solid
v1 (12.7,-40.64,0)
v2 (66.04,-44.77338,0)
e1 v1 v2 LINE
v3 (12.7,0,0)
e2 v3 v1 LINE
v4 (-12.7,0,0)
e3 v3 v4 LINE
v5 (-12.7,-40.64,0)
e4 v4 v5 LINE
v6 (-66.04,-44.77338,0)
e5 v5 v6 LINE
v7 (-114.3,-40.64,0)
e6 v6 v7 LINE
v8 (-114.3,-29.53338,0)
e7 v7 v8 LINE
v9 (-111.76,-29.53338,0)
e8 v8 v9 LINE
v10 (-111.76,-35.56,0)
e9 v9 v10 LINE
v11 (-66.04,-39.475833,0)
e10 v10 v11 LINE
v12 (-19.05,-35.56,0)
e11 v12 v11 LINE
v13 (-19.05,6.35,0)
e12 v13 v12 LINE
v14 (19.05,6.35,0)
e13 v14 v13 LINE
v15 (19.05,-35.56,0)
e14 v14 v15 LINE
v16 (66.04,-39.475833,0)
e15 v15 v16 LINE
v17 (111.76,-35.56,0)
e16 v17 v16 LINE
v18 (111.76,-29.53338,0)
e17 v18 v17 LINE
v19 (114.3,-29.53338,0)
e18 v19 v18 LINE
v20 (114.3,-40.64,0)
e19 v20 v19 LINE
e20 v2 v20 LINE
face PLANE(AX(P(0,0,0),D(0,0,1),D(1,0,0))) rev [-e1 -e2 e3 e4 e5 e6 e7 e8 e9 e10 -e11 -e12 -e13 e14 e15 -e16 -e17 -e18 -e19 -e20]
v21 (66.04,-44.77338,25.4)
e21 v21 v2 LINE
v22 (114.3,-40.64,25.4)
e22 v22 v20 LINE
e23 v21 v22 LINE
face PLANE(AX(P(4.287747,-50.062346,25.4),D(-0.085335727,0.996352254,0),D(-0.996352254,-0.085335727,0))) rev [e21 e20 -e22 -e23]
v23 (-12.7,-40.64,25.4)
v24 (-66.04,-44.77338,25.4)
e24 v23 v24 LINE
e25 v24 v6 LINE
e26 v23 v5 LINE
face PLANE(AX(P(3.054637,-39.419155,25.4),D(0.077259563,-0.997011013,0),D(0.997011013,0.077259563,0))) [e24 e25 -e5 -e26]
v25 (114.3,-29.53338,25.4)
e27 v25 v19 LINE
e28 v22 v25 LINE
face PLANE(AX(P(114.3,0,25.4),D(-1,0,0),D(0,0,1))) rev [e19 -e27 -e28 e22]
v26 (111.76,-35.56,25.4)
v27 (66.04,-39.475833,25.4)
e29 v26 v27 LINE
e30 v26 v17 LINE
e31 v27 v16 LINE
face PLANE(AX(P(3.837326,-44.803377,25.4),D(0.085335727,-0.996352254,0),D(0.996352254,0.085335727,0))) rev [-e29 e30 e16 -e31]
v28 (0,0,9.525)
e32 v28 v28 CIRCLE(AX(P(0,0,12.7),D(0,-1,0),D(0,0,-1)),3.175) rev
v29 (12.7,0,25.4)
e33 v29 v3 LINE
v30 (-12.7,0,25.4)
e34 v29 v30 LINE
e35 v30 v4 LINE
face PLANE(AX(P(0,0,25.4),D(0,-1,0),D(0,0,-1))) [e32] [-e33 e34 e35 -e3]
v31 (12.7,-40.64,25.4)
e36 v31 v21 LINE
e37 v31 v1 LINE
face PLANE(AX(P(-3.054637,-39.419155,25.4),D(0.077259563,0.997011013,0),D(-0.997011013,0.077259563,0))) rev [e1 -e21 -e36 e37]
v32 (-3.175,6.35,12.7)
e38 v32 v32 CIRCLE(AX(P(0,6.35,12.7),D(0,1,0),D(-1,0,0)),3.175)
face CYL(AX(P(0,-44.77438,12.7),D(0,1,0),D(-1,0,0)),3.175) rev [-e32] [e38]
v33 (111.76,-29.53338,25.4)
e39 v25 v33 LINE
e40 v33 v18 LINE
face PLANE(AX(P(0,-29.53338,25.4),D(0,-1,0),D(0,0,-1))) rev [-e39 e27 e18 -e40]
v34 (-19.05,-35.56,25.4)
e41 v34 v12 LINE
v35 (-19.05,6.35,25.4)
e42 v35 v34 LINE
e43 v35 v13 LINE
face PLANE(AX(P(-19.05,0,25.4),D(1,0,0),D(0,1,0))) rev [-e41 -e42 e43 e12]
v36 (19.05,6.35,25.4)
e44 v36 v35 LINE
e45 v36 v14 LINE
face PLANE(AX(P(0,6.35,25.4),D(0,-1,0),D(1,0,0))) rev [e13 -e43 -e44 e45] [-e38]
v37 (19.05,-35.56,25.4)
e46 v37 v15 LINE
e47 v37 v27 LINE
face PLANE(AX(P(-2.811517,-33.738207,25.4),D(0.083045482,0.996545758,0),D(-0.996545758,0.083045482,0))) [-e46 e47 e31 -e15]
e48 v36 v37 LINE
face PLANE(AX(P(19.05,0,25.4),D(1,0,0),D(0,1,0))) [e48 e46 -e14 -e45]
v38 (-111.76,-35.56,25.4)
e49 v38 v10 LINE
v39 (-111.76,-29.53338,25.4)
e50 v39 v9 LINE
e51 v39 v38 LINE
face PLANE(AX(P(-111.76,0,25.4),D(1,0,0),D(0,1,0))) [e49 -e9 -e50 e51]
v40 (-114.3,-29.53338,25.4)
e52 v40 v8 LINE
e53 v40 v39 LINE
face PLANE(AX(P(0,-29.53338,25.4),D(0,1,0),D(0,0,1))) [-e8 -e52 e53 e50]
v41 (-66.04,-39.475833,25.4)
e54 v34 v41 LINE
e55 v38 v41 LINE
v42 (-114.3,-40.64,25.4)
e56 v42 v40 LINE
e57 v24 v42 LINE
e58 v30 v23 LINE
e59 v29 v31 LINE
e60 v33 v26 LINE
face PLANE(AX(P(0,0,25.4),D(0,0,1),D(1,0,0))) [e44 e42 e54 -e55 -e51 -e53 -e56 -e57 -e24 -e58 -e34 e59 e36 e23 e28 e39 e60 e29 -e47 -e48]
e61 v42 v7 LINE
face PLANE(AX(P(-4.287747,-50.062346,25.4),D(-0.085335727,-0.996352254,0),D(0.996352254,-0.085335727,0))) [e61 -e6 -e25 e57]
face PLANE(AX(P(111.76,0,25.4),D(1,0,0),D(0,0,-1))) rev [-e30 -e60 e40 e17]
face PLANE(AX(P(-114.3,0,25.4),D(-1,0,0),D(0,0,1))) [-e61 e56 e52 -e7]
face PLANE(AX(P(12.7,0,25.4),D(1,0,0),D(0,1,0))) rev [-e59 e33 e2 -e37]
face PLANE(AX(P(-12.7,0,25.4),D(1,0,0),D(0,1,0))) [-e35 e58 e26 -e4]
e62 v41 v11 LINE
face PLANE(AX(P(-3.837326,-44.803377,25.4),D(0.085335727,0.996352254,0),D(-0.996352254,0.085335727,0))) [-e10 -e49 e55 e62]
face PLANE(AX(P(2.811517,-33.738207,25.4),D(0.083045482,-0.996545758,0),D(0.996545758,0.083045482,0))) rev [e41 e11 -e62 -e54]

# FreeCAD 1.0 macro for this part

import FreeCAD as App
import Part
import Sketcher
Q = App.Units.Quantity


def add_polygon(sketch, points):
    """Adds a closed chain of lines whose ends are joined by coincident constraints."""
    first, n = sketch.GeometryCount, len(points)
    for a, b in zip(points, points[1:] + points[:1]):
        sketch.addGeometry(Part.LineSegment(App.Vector(*a, 0), App.Vector(*b, 0)), False)
    for i in range(n):
        sketch.addConstraint(Sketcher.Constraint("Coincident", first + i, 2, first + (i + 1) % n, 1))

doc = App.newDocument("Part")
body = doc.addObject("PartDesign::Body", "Body")

sketch1 = body.newObject("Sketcher::SketchObject", "Sketch")
sketch1.AttachmentSupport = (doc.getObject("XY_Plane"), [""])
sketch1.MapMode = "FlatFace"
add_polygon(sketch1, [(12.7, 0), (12.7, -40.6), (66, -44.8), (114.3, -40.6), (114.3, -29.5), (111.8, -29.5), (111.8, -35.6), (66, -39.5), (19.1, -35.6), (19.1, 6.3), (-19.1, 6.3), (-19.1, -35.6), (-66, -39.5), (-111.8, -35.6), (-111.8, -29.5), (-114.3, -29.5), (-114.3, -40.6), (-66, -44.8), (-12.7, -40.6), (-12.7, 0)])
sketch1.addConstraint([
    Sketcher.Constraint("Vertical", 0),
    Sketcher.Constraint("Vertical", 3),
    Sketcher.Constraint("Horizontal", 4),
    Sketcher.Constraint("Vertical", 5),
    Sketcher.Constraint("Vertical", 8),
    Sketcher.Constraint("Horizontal", 9),
    Sketcher.Constraint("Vertical", 10),
    Sketcher.Constraint("Vertical", 13),
    Sketcher.Constraint("Horizontal", 14),
    Sketcher.Constraint("Vertical", 15),
    Sketcher.Constraint("Vertical", 18),
    Sketcher.Constraint("Horizontal", 19),
    Sketcher.Constraint("Symmetric", 18, 2, 19, 2, -1, 1),
    Sketcher.Constraint("Symmetric", 7, 2, 10, 2, -2),
    Sketcher.Constraint("Symmetric", 6, 2, 11, 2, -2),
    Sketcher.Constraint("Symmetric", 5, 2, 12, 2, -2),
    Sketcher.Constraint("Symmetric", 3, 2, 14, 2, -2),
    Sketcher.Constraint("Symmetric", 1, 2, 16, 2, -2),
    Sketcher.Constraint("Parallel", 2, 6),
    Sketcher.Constraint("Parallel", 12, 16),
    Sketcher.Constraint("Horizontal", 0, 2, 2, 2),
    Sketcher.Constraint("Horizontal", 5, 2, 7, 2),
    Sketcher.Constraint("Horizontal", 15, 2, 17, 2),
    Sketcher.Constraint("Vertical", 1, 2, 6, 2),
    Sketcher.Constraint("DistanceX", 19, 1, 19, 2, Q("1 in")),
    Sketcher.Constraint("DistanceX", 4, 2, 4, 1, Q("0.1 in")),
    Sketcher.Constraint("DistanceX", 9, 2, 9, 1, Q("1.5 in")),
    Sketcher.Constraint("DistanceY", 0, 2, 0, 1, Q("1.6 in")),
    Sketcher.Constraint("DistanceX", 0, 2, 2, 2, Q("4 in")),
    Sketcher.Constraint("DistanceY", 8, 1, 8, 2, Q("1.65 in")),
    Sketcher.Constraint("DistanceX", -1, 1, 1, 2, Q("2.6 in")),
    Sketcher.Constraint("DistanceY", 5, 2, -1, 1, Q("1.4 in")),
    Sketcher.Constraint("DistanceY", 1, 2, 3, 2, Q("0.6 in")),
    Sketcher.Constraint("DistanceY", 3, 1, 3, 2, 11.10662),
])
pad1 = body.newObject("PartDesign::Pad", "Pad")
pad1.Profile = sketch1
pad1.Length = Q("1 in")

sketch2 = body.newObject("Sketcher::SketchObject", "Sketch001")
sketch2.AttachmentSupport = (doc.getObject("XZ_Plane"), [""])
sketch2.MapMode = "FlatFace"
sketch2.AttachmentOffset = App.Placement(App.Vector(0, 0, -0.25 * 25.4), App.Rotation())
sketch2.addGeometry(Part.Circle(App.Vector(0, 12.7, 0), App.Vector(0, 0, 1), 3.2), False)
sketch2.addConstraint([
    Sketcher.Constraint("PointOnObject", 0, 3, -2),
    Sketcher.Constraint("Diameter", 0, Q("0.25 in")),
    Sketcher.Constraint("DistanceY", -1, 1, 0, 3, Q("0.5 in")),
])
pocket1 = body.newObject("PartDesign::Pocket", "Pocket")
pocket1.Profile = sketch2
pocket1.Type = "UpToFirst"
pocket1.Reversed = True

doc.recompute()
